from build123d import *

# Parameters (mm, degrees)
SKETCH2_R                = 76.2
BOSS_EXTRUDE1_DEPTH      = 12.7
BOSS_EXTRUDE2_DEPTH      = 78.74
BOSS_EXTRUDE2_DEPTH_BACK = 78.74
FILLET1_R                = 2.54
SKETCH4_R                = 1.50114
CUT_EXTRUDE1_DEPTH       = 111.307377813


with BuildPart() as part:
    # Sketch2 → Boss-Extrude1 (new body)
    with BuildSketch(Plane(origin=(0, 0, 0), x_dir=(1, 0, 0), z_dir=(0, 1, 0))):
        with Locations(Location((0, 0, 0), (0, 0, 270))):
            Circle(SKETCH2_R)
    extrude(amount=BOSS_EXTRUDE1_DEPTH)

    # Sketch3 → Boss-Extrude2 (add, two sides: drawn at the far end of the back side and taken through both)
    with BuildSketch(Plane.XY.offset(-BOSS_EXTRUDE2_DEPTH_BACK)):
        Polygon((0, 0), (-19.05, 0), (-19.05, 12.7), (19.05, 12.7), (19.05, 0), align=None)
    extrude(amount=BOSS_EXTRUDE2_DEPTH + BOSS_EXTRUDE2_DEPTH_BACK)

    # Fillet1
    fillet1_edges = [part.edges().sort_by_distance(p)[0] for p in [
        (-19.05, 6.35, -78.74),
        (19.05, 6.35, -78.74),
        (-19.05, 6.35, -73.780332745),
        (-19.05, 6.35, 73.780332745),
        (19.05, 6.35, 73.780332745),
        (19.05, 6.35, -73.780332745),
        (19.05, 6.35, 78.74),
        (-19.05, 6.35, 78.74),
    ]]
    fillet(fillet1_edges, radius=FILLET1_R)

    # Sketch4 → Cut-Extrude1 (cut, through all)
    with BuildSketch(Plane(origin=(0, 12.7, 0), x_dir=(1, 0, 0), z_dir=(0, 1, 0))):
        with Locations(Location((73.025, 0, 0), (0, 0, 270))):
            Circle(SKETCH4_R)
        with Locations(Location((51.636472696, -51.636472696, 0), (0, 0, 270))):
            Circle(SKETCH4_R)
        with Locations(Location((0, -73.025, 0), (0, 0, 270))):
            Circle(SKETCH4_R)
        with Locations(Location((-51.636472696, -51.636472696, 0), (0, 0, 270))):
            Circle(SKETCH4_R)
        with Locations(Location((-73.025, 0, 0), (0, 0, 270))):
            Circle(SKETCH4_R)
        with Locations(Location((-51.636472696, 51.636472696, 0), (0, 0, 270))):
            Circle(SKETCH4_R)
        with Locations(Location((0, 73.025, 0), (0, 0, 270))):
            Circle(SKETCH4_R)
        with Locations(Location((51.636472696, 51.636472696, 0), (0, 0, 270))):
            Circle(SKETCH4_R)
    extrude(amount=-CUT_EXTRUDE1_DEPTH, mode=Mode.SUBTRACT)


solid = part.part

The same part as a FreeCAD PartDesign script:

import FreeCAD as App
import Part
import Sketcher
from FreeCAD import Vector
Q = App.Units.Quantity


def edges_at(feature, points):
    """Names of the edges that pass closest to the given points."""
    edges = feature.Shape.Edges
    near = lambda p: min(range(len(edges)), key=lambda i: edges[i].distToShape(Part.Vertex(*p))[0])
    return sorted({f"Edge{near(p) + 1}" for p in points})


def add_polygon(sketch, points):
    """Adds a closed chain of lines whose ends are joined by coincident constraints."""
    first, n = sketch.GeometryCount, len(points)
    for a, b in zip(points, points[1:] + points[:1]):
        sketch.addGeometry(Part.LineSegment(App.Vector(*a, 0), App.Vector(*b, 0)), False)
    for i in range(n):
        sketch.addConstraint(Sketcher.Constraint("Coincident", first + i, 2, first + (i + 1) % n, 1))

doc = App.newDocument("Part")
body = doc.addObject("PartDesign::Body", "Body")

sketch1 = doc.addObject("Sketcher::SketchObject", "Sketch")
body.addObject(sketch1)
sketch1.AttachmentSupport = (doc.XZ_Plane, [""])
sketch1.MapMode = "FlatFace"
sketch1.addGeometry(Part.Circle(Vector(0, 0, 0), Vector(0, 0, 1), 76.2), False)
sketch1.addConstraint(Sketcher.Constraint("Coincident", 0, 3, -1, 1))
sketch1.addConstraint(Sketcher.Constraint("Diameter", 0, Q("6 in")))
pad1 = doc.addObject("PartDesign::Pad", "Pad")
body.addObject(pad1)
pad1.Profile = sketch1
pad1.Length = Q("0.5 in")
pad1.Reversed = True

sketch2 = doc.addObject("Sketcher::SketchObject", "Sketch001")
body.addObject(sketch2)
sketch2.AttachmentSupport = (doc.XY_Plane, [""])
sketch2.MapMode = "FlatFace"
add_polygon(sketch2, [(-19.05, 0), (19.05, 0), (19.05, 12.7), (-19.05, 12.7)])
sketch2.addConstraint(Sketcher.Constraint("Horizontal", 0))
sketch2.addConstraint(Sketcher.Constraint("Vertical", 1))
sketch2.addConstraint(Sketcher.Constraint("Horizontal", 2))
sketch2.addConstraint(Sketcher.Constraint("Vertical", 3))
sketch2.addConstraint(Sketcher.Constraint("Symmetric", 0, 2, 3, 2, -1, 1))
sketch2.addConstraint(Sketcher.Constraint("DistanceX", 0, 1, 0, 2, Q("1.5 in")))
sketch2.addConstraint(Sketcher.Constraint("DistanceY", 1, 1, 1, 2, Q("0.5 in")))
pad2 = doc.addObject("PartDesign::Pad", "Pad001")
body.addObject(pad2)
pad2.Profile = sketch2
pad2.Type = "TwoLengths"
pad2.Length = Q("3.1 in")
pad2.Length2 = Q("3.1 in")
doc.recompute()

fillet = doc.addObject("PartDesign::Fillet", "Fillet")
body.addObject(fillet)
fillet.Base = (pad2, edges_at(pad2, [
    (-19.05, 6.35, -78.74),
    (19.05, 6.35, -78.74),
    (-19.05, 6.35, -73.78),
    (-19.05, 6.35, 73.78),
    (19.05, 6.35, 73.78),
    (19.05, 6.35, -73.78),
    (19.05, 6.35, 78.74),
    (-19.05, 6.35, 78.74),
]))
fillet.Radius = Q("0.1 in")

sketch3 = doc.addObject("Sketcher::SketchObject", "Sketch002")
body.addObject(sketch3)
sketch3.AttachmentSupport = (doc.XZ_Plane, [""])
sketch3.MapMode = "FlatFace"
sketch3.AttachmentOffset = App.Placement(Vector(0, 0, -0.5 * 25.4), App.Rotation())
sketch3.addGeometry(Part.Circle(Vector(73.025, 0, 0), Vector(0, 0, 1), 1.50114), False)
sketch3.addGeometry(Part.Circle(Vector(51.636473, 51.636473, 0), Vector(0, 0, 1), 1.50114), False)
sketch3.addGeometry(Part.Circle(Vector(0, 73.025, 0), Vector(0, 0, 1), 1.50114), False)
sketch3.addGeometry(Part.Circle(Vector(-51.636473, 51.636473, 0), Vector(0, 0, 1), 1.50114), False)
sketch3.addGeometry(Part.Circle(Vector(-73.025, 0, 0), Vector(0, 0, 1), 1.50114), False)
sketch3.addGeometry(Part.Circle(Vector(-51.636473, -51.636473, 0), Vector(0, 0, 1), 1.50114), False)
sketch3.addGeometry(Part.Circle(Vector(0, -73.025, 0), Vector(0, 0, 1), 1.50114), False)
sketch3.addGeometry(Part.Circle(Vector(51.636473, -51.636473, 0), Vector(0, 0, 1), 1.50114), False)
sketch3.addConstraint(Sketcher.Constraint("Equal", 0, 1))
sketch3.addConstraint(Sketcher.Constraint("Equal", 1, 2))
sketch3.addConstraint(Sketcher.Constraint("Equal", 2, 3))
sketch3.addConstraint(Sketcher.Constraint("Equal", 3, 4))
sketch3.addConstraint(Sketcher.Constraint("Equal", 4, 5))
sketch3.addConstraint(Sketcher.Constraint("Equal", 5, 6))
sketch3.addConstraint(Sketcher.Constraint("Equal", 6, 7))
sketch3.addConstraint(Sketcher.Constraint("Symmetric", 0, 3, 4, 3, -1, 1))
sketch3.addConstraint(Sketcher.Constraint("Symmetric", 1, 3, 5, 3, -1, 1))
sketch3.addConstraint(Sketcher.Constraint("Symmetric", 2, 3, 6, 3, -1, 1))
sketch3.addConstraint(Sketcher.Constraint("Symmetric", 3, 3, 7, 3, -1, 1))
sketch3.addConstraint(Sketcher.Constraint("Symmetric", 1, 3, 3, 3, -2))
sketch3.addConstraint(Sketcher.Constraint("PointOnObject", 0, 3, -1))
sketch3.addConstraint(Sketcher.Constraint("PointOnObject", 2, 3, -2))
sketch3.addConstraint(Sketcher.Constraint("Diameter", 0, Q("0.1182 in")))
sketch3.addConstraint(Sketcher.Constraint("DistanceX", 4, 3, 0, 3, Q("5.75 in")))
sketch3.addConstraint(Sketcher.Constraint("DistanceY", -1, 1, 2, 3, Q("2.875 in")))
sketch3.addConstraint(Sketcher.Constraint("DistanceX", -1, 1, 1, 3, Q("51.636473 mm")))
sketch3.addConstraint(Sketcher.Constraint("DistanceY", -1, 1, 1, 3, Q("51.636473 mm")))
pocket1 = doc.addObject("PartDesign::Pocket", "Pocket")
body.addObject(pocket1)
pocket1.Profile = sketch3
pocket1.Type = "ThroughAll"
pocket1.Reversed = True

doc.recompute()
